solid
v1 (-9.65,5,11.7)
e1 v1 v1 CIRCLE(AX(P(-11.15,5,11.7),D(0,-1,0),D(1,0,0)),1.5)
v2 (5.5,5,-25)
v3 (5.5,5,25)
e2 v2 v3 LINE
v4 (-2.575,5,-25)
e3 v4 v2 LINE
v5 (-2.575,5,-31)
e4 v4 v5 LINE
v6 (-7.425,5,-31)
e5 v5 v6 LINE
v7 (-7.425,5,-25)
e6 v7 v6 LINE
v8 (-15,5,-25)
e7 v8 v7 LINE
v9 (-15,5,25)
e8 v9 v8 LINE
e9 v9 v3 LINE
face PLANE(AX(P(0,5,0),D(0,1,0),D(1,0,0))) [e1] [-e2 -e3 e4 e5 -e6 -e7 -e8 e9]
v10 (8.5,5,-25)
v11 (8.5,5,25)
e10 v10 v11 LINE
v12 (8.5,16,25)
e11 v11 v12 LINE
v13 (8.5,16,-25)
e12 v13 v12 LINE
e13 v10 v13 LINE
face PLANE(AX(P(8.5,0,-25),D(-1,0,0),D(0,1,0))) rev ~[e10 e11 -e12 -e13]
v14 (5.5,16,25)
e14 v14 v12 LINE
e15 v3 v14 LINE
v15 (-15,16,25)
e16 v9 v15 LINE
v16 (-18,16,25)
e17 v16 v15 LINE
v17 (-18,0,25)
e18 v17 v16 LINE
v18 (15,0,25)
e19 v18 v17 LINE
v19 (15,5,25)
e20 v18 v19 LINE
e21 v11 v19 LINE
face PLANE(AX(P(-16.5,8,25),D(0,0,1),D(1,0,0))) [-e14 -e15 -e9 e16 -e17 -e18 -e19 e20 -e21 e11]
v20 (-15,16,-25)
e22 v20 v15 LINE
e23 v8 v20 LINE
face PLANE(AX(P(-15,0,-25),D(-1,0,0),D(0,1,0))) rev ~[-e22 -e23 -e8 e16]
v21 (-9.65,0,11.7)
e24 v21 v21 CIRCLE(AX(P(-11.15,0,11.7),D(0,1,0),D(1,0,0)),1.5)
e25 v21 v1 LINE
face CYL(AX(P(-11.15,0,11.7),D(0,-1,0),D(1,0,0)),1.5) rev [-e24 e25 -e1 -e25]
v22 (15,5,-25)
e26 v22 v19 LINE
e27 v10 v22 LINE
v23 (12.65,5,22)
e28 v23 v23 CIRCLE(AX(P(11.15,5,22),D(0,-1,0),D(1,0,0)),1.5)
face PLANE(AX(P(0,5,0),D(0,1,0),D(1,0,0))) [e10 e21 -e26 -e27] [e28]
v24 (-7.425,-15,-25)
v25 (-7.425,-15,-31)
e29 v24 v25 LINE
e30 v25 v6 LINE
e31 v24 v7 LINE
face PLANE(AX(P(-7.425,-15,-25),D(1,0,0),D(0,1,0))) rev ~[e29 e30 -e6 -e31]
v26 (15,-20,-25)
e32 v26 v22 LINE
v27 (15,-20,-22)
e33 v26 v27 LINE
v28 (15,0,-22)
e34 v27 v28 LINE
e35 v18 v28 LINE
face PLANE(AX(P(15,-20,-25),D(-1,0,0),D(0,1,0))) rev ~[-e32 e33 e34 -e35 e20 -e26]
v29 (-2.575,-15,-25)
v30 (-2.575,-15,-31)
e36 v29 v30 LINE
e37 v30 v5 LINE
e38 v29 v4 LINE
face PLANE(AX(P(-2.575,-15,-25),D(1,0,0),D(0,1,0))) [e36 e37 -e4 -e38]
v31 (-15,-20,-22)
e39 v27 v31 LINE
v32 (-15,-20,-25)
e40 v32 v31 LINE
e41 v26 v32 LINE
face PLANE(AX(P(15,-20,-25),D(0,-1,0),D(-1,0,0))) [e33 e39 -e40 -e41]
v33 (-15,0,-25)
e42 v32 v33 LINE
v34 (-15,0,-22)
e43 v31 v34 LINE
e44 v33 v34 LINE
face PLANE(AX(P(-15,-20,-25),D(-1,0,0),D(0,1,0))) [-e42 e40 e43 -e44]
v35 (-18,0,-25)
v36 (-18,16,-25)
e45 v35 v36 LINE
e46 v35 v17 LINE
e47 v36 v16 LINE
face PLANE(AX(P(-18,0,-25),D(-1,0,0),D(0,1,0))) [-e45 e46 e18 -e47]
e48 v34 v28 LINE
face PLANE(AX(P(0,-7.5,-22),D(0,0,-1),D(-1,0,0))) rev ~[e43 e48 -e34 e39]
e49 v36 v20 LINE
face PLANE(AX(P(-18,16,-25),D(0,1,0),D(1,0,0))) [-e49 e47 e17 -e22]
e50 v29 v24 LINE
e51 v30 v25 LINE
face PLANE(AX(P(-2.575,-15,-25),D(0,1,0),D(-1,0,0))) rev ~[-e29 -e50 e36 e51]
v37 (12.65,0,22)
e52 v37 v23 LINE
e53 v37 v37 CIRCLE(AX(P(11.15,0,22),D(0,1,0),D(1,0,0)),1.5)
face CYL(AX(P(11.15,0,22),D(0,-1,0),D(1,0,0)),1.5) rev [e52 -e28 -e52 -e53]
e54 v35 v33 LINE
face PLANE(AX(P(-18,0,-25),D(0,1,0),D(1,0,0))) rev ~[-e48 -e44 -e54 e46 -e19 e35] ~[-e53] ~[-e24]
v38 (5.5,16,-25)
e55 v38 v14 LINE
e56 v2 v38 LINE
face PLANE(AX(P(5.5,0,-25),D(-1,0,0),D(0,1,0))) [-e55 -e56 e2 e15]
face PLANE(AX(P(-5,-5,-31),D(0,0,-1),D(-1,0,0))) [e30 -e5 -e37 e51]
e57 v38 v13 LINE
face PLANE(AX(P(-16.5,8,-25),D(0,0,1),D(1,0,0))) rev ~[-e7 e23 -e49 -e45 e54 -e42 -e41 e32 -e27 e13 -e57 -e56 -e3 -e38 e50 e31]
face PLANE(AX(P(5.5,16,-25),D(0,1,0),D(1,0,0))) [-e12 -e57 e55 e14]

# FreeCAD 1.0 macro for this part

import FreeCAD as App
import Part
import Sketcher
from FreeCAD import Vector

doc = App.newDocument("Part")
body = doc.addObject("PartDesign::Body", "Body")

sketch1 = doc.addObject("Sketcher::SketchObject", "Sketch")
body.addObject(sketch1)
sketch1.AttachmentSupport = (doc.XZ_Plane, [""])
sketch1.MapMode = "FlatFace"
sketch1.addGeometry(Part.LineSegment(Vector(-15, -25, 0), Vector(-15, 25, 0)), False)
sketch1.addGeometry(Part.LineSegment(Vector(-15, 25, 0), Vector(15, 25, 0)), False)
sketch1.addGeometry(Part.LineSegment(Vector(15, 25, 0), Vector(15, -25, 0)), False)
sketch1.addGeometry(Part.LineSegment(Vector(15, -25, 0), Vector(-15, -25, 0)), False)
sketch1.addConstraint(Sketcher.Constraint("Coincident", 0, 2, 1, 1))
sketch1.addConstraint(Sketcher.Constraint("Coincident", 1, 2, 2, 1))
sketch1.addConstraint(Sketcher.Constraint("Coincident", 2, 2, 3, 1))
sketch1.addConstraint(Sketcher.Constraint("Coincident", 3, 2, 0, 1))
sketch1.addConstraint(Sketcher.Constraint("Vertical", 0))
sketch1.addConstraint(Sketcher.Constraint("Horizontal", 1))
sketch1.addConstraint(Sketcher.Constraint("Vertical", 2))
sketch1.addConstraint(Sketcher.Constraint("Horizontal", 3))
sketch1.addConstraint(Sketcher.Constraint("Symmetric", 0, 2, 2, 2, -1, 1))
sketch1.addConstraint(Sketcher.Constraint("DistanceX", 1, 1, 1, 2, 30.0))
sketch1.addConstraint(Sketcher.Constraint("DistanceY", 0, 1, 0, 2, 50.0))
pad1 = doc.addObject("PartDesign::Pad", "Pad")
body.addObject(pad1)
pad1.Profile = sketch1
pad1.Length = 5
pad1.Reversed = True

sketch2 = doc.addObject("Sketcher::SketchObject", "Sketch001")
body.addObject(sketch2)
sketch2.AttachmentSupport = (doc.XZ_Plane, [""])
sketch2.MapMode = "FlatFace"
sketch2.addGeometry(Part.Circle(Vector(-11.2, 11.7, 0), Vector(0, 0, 1), 1.5), False)
sketch2.addGeometry(Part.Circle(Vector(11.2, 22, 0), Vector(0, 0, 1), 1.5), False)
sketch2.addConstraint(Sketcher.Constraint("Equal", 0, 1))
sketch2.addConstraint(Sketcher.Constraint("Diameter", 0, 3.0))
sketch2.addConstraint(Sketcher.Constraint("DistanceY", -1, 1, 1, 3, 22.0))
sketch2.addConstraint(Sketcher.Constraint("DistanceY", -1, 1, 0, 3, 11.7))
sketch2.addConstraint(Sketcher.Constraint("DistanceX", 0, 3, 1, 3, 22.3))
sketch2.addConstraint(Sketcher.Constraint("DistanceX", 0, 3, -1, 1, 11.15))
pocket1 = doc.addObject("PartDesign::Pocket", "Pocket")
body.addObject(pocket1)
pocket1.Profile = sketch2
pocket1.Type = "ThroughAll"
pocket1.Midplane = True

sketch3 = doc.addObject("Sketcher::SketchObject", "Sketch002")
body.addObject(sketch3)
sketch3.AttachmentSupport = (doc.XY_Plane, [""])
sketch3.MapMode = "FlatFace"
sketch3.AttachmentOffset = App.Placement(Vector(0, 0, -25), App.Rotation())
sketch3.addGeometry(Part.LineSegment(Vector(15, 5, 0), Vector(15, -20, 0)), False)
sketch3.addGeometry(Part.LineSegment(Vector(15, -20, 0), Vector(-15, -20, 0)), False)
sketch3.addGeometry(Part.LineSegment(Vector(-15, -20, 0), Vector(-15, 5, 0)), False)
sketch3.addGeometry(Part.LineSegment(Vector(-15, 5, 0), Vector(15, 5, 0)), False)
sketch3.addConstraint(Sketcher.Constraint("Coincident", 0, 2, 1, 1))
sketch3.addConstraint(Sketcher.Constraint("Coincident", 1, 2, 2, 1))
sketch3.addConstraint(Sketcher.Constraint("Coincident", 2, 2, 3, 1))
sketch3.addConstraint(Sketcher.Constraint("Coincident", 3, 2, 0, 1))
sketch3.addConstraint(Sketcher.Constraint("Vertical", 0))
sketch3.addConstraint(Sketcher.Constraint("Horizontal", 1))
sketch3.addConstraint(Sketcher.Constraint("Vertical", 2))
sketch3.addConstraint(Sketcher.Constraint("Horizontal", 3))
sketch3.addConstraint(Sketcher.Constraint("DistanceX", 1, 2, 1, 1, 30.0))
sketch3.addConstraint(Sketcher.Constraint("DistanceY", 0, 2, 0, 1, 25.0))
sketch3.addConstraint(Sketcher.Constraint("DistanceX", -1, 1, 0, 2, 15.0))
sketch3.addConstraint(Sketcher.Constraint("DistanceY", 0, 2, -1, 1, 20.0))
pad2 = doc.addObject("PartDesign::Pad", "Pad001")
body.addObject(pad2)
pad2.Profile = sketch3
pad2.Length = 3

sketch4 = doc.addObject("Sketcher::SketchObject", "Sketch003")
body.addObject(sketch4)
sketch4.AttachmentSupport = (doc.XY_Plane, [""])
sketch4.MapMode = "FlatFace"
sketch4.AttachmentOffset = App.Placement(Vector(0, 0, -25), App.Rotation())
sketch4.addGeometry(Part.LineSegment(Vector(-2.6, 5, 0), Vector(-2.6, -15, 0)), False)
sketch4.addGeometry(Part.LineSegment(Vector(-2.6, -15, 0), Vector(-7.4, -15, 0)), False)
sketch4.addGeometry(Part.LineSegment(Vector(-7.4, -15, 0), Vector(-7.4, 5, 0)), False)
sketch4.addGeometry(Part.LineSegment(Vector(-7.4, 5, 0), Vector(-2.6, 5, 0)), False)
sketch4.addConstraint(Sketcher.Constraint("Coincident", 0, 2, 1, 1))
sketch4.addConstraint(Sketcher.Constraint("Coincident", 1, 2, 2, 1))
sketch4.addConstraint(Sketcher.Constraint("Coincident", 2, 2, 3, 1))
sketch4.addConstraint(Sketcher.Constraint("Coincident", 3, 2, 0, 1))
sketch4.addConstraint(Sketcher.Constraint("Vertical", 0))
sketch4.addConstraint(Sketcher.Constraint("Horizontal", 1))
sketch4.addConstraint(Sketcher.Constraint("Vertical", 2))
sketch4.addConstraint(Sketcher.Constraint("Horizontal", 3))
sketch4.addConstraint(Sketcher.Constraint("DistanceY", 0, 2, 0, 1, 20.0))
sketch4.addConstraint(Sketcher.Constraint("DistanceY", 0, 2, -1, 1, 15.0))
sketch4.addConstraint(Sketcher.Constraint("DistanceX", 1, 2, 1, 1, 4.85))
sketch4.addConstraint(Sketcher.Constraint("DistanceX", 0, 2, -1, 1, 2.575))
pad3 = doc.addObject("PartDesign::Pad", "Pad002")
body.addObject(pad3)
pad3.Profile = sketch4
pad3.Length = 6
pad3.Reversed = True

sketch5 = doc.addObject("Sketcher::SketchObject", "Sketch004")
body.addObject(sketch5)
sketch5.AttachmentSupport = (doc.XY_Plane, [""])
sketch5.MapMode = "FlatFace"
sketch5.AttachmentOffset = App.Placement(Vector(0, 0, -25), App.Rotation())
sketch5.addGeometry(Part.LineSegment(Vector(-18, 16, 0), Vector(-18, 0, 0)), False)
sketch5.addGeometry(Part.LineSegment(Vector(-18, 0, 0), Vector(-15, 0, 0)), False)
sketch5.addGeometry(Part.LineSegment(Vector(-15, 0, 0), Vector(-15, 16, 0)), False)
sketch5.addGeometry(Part.LineSegment(Vector(-15, 16, 0), Vector(-18, 16, 0)), False)
sketch5.addGeometry(Part.LineSegment(Vector(5.5, 16, 0), Vector(5.5, 0, 0)), False)
sketch5.addGeometry(Part.LineSegment(Vector(5.5, 0, 0), Vector(8.5, 0, 0)), False)
sketch5.addGeometry(Part.LineSegment(Vector(8.5, 0, 0), Vector(8.5, 16, 0)), False)
sketch5.addGeometry(Part.LineSegment(Vector(8.5, 16, 0), Vector(5.5, 16, 0)), False)
sketch5.addConstraint(Sketcher.Constraint("Coincident", 0, 2, 1, 1))
sketch5.addConstraint(Sketcher.Constraint("Coincident", 1, 2, 2, 1))
sketch5.addConstraint(Sketcher.Constraint("Coincident", 2, 2, 3, 1))
sketch5.addConstraint(Sketcher.Constraint("Coincident", 3, 2, 0, 1))
sketch5.addConstraint(Sketcher.Constraint("Coincident", 4, 2, 5, 1))
sketch5.addConstraint(Sketcher.Constraint("Coincident", 5, 2, 6, 1))
sketch5.addConstraint(Sketcher.Constraint("Coincident", 6, 2, 7, 1))
sketch5.addConstraint(Sketcher.Constraint("Coincident", 7, 2, 4, 1))
sketch5.addConstraint(Sketcher.Constraint("Vertical", 0))
sketch5.addConstraint(Sketcher.Constraint("Horizontal", 1))
sketch5.addConstraint(Sketcher.Constraint("Vertical", 2))
sketch5.addConstraint(Sketcher.Constraint("Horizontal", 3))
sketch5.addConstraint(Sketcher.Constraint("Vertical", 4))
sketch5.addConstraint(Sketcher.Constraint("Horizontal", 5))
sketch5.addConstraint(Sketcher.Constraint("Vertical", 6))
sketch5.addConstraint(Sketcher.Constraint("Horizontal", 7))
sketch5.addConstraint(Sketcher.Constraint("PointOnObject", 0, 2, -1))
sketch5.addConstraint(Sketcher.Constraint("PointOnObject", 4, 2, -1))
sketch5.addConstraint(Sketcher.Constraint("Horizontal", 3, 2, 6, 2))
sketch5.addConstraint(Sketcher.Constraint("Equal", 3, 5))
sketch5.addConstraint(Sketcher.Constraint("DistanceX", 1, 1, 1, 2, 3.0))
sketch5.addConstraint(Sketcher.Constraint("DistanceY", 0, 2, 0, 1, 16.0))
sketch5.addConstraint(Sketcher.Constraint("DistanceX", 0, 2, -1, 1, 18.0))
sketch5.addConstraint(Sketcher.Constraint("DistanceX", -1, 1, 4, 2, 5.5))
pad4 = doc.addObject("PartDesign::Pad", "Pad003")
body.addObject(pad4)
pad4.Profile = sketch5
pad4.Length = 50

doc.recompute()
